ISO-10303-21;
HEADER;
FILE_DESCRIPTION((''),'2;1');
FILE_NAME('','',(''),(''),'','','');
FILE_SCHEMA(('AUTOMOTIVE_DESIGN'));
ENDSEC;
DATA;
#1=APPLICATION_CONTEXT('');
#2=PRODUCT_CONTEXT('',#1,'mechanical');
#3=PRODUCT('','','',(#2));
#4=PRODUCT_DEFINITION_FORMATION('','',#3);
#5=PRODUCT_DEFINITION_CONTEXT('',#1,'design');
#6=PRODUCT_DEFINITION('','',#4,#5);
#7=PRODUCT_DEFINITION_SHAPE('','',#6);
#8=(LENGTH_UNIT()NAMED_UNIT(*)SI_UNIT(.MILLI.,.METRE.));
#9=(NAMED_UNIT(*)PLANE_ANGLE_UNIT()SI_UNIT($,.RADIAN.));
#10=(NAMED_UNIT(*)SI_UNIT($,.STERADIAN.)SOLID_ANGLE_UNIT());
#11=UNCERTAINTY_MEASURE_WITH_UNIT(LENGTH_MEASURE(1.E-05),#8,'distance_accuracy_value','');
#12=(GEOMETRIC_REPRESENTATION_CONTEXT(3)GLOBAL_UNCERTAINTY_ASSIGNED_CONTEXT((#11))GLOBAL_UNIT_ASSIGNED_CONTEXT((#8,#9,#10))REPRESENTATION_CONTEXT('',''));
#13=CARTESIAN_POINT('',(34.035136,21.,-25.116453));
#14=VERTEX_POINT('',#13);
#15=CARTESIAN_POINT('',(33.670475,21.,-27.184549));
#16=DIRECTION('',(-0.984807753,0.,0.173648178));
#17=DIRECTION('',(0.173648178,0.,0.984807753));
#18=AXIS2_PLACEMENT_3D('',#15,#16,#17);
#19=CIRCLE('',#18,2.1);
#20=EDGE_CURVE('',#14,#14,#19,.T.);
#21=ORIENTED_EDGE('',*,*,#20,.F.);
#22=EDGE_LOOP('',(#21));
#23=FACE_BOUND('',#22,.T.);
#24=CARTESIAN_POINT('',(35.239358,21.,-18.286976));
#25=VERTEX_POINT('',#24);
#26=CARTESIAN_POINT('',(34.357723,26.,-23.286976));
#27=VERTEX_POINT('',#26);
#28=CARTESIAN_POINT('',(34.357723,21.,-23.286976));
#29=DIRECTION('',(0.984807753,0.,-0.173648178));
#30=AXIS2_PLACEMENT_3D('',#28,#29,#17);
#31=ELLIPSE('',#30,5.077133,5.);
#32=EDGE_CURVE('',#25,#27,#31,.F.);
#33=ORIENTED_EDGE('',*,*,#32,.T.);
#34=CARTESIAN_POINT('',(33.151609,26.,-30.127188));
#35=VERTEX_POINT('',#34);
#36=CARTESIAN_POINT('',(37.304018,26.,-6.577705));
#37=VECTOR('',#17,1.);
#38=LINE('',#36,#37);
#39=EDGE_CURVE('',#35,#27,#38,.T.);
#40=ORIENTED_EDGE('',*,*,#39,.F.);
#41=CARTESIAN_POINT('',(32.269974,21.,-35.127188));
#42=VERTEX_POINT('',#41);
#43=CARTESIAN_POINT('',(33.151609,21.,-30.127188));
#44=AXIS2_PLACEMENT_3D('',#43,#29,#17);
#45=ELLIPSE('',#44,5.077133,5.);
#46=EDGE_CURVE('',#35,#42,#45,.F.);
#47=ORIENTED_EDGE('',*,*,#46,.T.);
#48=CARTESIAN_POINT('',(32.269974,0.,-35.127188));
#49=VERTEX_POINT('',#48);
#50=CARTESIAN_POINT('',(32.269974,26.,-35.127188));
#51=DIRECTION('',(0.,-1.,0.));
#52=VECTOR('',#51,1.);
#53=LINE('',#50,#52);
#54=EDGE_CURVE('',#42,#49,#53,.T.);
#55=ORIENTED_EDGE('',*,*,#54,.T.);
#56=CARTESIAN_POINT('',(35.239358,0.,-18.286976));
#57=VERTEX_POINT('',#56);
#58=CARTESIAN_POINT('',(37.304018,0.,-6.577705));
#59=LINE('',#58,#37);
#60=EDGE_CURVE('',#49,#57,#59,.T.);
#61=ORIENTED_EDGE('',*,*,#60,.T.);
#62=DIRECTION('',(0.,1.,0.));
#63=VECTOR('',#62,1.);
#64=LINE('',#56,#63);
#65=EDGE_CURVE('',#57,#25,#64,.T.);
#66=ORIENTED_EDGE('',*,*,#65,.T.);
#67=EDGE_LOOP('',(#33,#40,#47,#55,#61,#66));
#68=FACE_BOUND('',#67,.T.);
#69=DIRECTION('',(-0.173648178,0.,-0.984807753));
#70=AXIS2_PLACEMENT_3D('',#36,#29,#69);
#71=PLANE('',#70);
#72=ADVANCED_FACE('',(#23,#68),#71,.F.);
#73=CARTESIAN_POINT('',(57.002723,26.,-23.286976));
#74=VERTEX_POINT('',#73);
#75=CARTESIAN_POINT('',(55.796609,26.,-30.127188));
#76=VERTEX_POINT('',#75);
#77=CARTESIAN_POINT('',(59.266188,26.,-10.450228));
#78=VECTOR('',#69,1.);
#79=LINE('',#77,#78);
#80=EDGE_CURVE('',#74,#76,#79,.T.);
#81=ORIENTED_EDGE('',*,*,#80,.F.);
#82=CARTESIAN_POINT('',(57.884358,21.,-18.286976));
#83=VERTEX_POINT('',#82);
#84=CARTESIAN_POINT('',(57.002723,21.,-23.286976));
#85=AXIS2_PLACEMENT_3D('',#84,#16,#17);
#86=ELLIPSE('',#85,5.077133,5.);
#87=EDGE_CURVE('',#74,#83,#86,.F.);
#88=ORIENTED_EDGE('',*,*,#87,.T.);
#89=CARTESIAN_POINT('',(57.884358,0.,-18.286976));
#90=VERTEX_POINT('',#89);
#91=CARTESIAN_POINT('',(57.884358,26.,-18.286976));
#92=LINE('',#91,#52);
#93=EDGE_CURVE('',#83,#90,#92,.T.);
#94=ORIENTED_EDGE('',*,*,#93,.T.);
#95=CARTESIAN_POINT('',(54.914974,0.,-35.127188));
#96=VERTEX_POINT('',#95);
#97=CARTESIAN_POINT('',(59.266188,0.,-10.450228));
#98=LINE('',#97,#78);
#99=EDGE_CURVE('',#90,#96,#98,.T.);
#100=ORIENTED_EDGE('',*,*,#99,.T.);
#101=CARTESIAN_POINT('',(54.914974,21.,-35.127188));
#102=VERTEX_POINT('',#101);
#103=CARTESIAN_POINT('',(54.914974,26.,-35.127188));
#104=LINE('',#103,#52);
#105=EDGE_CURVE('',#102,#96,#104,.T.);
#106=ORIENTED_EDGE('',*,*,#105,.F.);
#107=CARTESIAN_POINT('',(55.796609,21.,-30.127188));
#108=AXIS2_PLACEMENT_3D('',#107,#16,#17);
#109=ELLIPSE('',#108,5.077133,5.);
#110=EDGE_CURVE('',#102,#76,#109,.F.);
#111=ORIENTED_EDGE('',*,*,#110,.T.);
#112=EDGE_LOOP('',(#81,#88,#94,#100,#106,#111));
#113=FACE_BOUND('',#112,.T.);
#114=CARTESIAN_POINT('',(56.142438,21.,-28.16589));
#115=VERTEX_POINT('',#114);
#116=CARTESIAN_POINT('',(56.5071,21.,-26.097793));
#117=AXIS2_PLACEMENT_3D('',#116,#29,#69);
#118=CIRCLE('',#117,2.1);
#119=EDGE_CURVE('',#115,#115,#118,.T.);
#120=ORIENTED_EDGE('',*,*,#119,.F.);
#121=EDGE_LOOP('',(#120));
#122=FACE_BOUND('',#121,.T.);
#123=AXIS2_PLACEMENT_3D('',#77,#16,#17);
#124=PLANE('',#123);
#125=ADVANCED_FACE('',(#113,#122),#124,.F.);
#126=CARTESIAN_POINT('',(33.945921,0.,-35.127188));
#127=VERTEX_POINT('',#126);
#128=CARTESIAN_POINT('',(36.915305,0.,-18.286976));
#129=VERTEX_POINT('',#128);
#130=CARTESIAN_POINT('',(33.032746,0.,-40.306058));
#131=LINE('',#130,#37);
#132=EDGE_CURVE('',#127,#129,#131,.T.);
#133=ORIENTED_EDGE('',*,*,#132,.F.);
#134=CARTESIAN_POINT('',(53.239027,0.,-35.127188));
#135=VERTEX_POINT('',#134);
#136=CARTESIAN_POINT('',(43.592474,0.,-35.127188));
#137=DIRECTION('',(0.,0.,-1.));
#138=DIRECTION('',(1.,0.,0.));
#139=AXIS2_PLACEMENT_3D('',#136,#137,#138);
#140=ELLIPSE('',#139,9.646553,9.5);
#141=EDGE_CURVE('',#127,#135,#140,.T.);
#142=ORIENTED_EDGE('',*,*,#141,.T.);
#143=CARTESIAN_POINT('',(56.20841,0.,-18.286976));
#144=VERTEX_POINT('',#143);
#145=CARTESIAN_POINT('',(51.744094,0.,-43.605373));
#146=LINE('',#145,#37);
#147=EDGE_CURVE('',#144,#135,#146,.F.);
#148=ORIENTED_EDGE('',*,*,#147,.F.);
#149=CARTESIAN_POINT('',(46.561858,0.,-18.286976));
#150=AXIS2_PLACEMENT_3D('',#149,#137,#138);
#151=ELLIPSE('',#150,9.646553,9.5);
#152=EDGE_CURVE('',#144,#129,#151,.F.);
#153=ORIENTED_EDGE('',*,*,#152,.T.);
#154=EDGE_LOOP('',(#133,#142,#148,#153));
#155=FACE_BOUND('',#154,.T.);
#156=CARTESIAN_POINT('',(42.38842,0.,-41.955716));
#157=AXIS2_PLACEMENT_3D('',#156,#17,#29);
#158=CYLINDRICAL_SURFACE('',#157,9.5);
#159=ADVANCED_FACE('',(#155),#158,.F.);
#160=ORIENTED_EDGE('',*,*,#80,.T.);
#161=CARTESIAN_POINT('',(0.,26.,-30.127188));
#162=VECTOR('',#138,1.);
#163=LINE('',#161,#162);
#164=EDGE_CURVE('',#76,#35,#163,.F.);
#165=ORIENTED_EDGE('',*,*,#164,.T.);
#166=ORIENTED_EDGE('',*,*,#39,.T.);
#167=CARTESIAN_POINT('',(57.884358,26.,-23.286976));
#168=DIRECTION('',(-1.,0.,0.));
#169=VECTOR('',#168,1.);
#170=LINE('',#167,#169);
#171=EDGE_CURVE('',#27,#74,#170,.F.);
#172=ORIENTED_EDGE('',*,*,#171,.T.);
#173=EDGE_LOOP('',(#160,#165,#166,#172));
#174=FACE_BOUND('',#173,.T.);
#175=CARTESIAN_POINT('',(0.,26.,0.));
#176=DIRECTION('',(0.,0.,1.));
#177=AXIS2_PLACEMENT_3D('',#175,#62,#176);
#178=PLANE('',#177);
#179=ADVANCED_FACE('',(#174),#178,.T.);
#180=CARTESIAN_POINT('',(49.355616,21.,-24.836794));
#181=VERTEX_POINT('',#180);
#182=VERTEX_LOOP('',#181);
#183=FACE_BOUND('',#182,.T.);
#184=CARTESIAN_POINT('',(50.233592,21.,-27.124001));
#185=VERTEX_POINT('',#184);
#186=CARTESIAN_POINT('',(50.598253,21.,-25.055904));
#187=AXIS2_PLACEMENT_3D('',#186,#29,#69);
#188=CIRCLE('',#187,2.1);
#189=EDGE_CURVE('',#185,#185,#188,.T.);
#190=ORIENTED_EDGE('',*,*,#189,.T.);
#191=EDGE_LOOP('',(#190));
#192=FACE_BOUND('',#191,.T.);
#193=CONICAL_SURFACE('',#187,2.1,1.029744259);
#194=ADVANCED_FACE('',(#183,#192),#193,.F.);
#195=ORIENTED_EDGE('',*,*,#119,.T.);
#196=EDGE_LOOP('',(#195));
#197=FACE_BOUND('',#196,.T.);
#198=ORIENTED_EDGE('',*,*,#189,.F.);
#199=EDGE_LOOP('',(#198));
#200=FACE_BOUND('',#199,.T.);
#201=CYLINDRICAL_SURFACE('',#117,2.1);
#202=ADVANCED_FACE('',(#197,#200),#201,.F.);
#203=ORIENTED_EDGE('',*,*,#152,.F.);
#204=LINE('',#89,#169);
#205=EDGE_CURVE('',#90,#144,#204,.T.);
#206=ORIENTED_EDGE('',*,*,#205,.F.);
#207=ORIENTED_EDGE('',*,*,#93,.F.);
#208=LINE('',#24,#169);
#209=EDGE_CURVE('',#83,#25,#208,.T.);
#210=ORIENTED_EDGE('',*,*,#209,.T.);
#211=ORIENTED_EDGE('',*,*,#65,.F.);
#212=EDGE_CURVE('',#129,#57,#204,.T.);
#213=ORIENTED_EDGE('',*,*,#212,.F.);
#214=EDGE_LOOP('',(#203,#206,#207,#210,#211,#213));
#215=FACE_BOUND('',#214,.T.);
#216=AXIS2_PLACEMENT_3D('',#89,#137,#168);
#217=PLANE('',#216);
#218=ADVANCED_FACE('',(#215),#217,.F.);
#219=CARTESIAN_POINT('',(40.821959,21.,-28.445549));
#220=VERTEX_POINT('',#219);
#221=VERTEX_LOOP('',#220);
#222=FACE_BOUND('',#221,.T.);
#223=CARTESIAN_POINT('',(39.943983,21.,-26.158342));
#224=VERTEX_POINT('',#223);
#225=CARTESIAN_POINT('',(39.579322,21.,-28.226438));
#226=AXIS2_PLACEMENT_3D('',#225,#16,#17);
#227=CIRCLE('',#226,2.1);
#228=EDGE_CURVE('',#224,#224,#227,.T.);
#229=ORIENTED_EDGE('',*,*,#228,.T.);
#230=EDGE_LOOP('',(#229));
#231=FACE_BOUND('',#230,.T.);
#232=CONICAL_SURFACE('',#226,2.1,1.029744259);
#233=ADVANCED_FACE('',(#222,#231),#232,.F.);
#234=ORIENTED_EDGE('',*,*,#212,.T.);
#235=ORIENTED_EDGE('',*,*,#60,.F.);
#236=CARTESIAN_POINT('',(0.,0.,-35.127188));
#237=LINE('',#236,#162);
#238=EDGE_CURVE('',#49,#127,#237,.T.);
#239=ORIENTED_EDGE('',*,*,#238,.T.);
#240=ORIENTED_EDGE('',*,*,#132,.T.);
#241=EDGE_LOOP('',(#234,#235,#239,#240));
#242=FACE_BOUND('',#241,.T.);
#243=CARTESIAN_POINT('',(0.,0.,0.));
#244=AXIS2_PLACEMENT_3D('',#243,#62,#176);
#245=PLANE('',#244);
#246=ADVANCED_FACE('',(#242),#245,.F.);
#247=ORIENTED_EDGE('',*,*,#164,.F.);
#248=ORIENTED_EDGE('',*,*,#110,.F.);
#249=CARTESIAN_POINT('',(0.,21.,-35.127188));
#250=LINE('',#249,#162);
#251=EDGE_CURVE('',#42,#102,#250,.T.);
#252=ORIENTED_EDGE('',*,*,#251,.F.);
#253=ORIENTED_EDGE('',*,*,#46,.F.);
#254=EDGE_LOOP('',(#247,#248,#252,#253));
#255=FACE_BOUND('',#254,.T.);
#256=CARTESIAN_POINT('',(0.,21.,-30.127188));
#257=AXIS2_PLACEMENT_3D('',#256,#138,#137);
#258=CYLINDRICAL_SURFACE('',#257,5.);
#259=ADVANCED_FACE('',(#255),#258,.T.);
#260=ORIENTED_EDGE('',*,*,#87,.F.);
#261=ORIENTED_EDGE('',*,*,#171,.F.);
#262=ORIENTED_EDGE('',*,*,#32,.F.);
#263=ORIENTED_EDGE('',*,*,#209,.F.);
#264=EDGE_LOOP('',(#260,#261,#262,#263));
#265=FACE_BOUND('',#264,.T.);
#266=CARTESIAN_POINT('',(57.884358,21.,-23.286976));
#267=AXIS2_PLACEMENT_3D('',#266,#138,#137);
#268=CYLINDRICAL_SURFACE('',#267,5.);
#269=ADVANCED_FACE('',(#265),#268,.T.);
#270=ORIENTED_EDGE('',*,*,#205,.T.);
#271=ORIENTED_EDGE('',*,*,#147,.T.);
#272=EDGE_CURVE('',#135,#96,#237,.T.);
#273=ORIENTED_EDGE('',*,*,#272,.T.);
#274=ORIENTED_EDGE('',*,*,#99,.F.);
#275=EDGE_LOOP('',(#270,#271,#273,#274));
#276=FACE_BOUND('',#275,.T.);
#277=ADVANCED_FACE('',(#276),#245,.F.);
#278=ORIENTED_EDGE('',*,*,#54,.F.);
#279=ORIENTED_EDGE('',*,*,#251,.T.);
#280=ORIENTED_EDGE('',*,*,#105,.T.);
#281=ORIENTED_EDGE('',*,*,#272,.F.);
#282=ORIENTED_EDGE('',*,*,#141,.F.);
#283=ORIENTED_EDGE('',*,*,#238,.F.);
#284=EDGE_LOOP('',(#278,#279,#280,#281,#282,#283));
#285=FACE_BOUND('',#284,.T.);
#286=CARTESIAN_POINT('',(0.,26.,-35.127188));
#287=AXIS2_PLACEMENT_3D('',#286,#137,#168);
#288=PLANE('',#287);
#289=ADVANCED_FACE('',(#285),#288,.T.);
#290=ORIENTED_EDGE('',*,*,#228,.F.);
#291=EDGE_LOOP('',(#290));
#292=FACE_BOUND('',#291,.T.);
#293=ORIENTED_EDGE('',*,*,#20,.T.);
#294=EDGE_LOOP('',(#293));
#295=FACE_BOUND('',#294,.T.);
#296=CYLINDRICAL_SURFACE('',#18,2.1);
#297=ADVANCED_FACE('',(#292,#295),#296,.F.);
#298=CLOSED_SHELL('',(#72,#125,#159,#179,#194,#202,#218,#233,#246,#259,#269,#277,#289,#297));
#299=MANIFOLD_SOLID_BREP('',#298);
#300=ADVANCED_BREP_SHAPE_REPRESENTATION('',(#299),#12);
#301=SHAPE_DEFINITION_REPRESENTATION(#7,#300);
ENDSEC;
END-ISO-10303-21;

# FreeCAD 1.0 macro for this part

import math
import FreeCAD as App
import Part
import Sketcher

V = App.Vector
Q = App.Units.Quantity


def edges_at(feature, points):
    """Names of the edges that pass closest to the given points."""
    edges = feature.Shape.Edges
    near = lambda p: min(range(len(edges)), key=lambda i: edges[i].distToShape(Part.Vertex(*p))[0])
    return sorted({f"Edge{near(p) + 1}" for p in points})


def add_polygon(sketch, points):
    """Adds a closed chain of lines whose ends are joined by coincident constraints."""
    first, n = sketch.GeometryCount, len(points)
    for a, b in zip(points, points[1:] + points[:1]):
        sketch.addGeometry(Part.LineSegment(App.Vector(*a, 0), App.Vector(*b, 0)), False)
    for i in range(n):
        sketch.addConstraint(Sketcher.Constraint("Coincident", first + i, 2, first + (i + 1) % n, 1))

doc = App.newDocument("Part")
params = doc.addObject("Spreadsheet::Sheet", "Params")
for row, (alias, value) in enumerate([
    ("sketch1_length", "17.1 mm"),
    ("pad1_length", "26 mm"),
    ("sketch2_radius", "9.5 mm"),
    ("pocket1_length", "26 mm"),
    ("pocket2_length", "26 mm"),
    ("fillet_radius", "5 mm"),
    ("sketch4_diameter", "4.2 mm"),
    ("hole_diameter", "4.2 mm"),
    ("hole_depth", "6 mm"),
    ("sketch5_diameter", "4.2 mm"),
    ("hole2_diameter", "4.2 mm"),
    ("hole2_depth", "6 mm"),
], start=1):
    params.set(f"A{row}", alias)
    params.set(f"B{row}", "=" + value)
    params.setAlias(f"B{row}", alias)

body = doc.addObject("PartDesign::Body", "Body")

# Sketch on XZ plane
sketch1 = body.newObject("Sketcher::SketchObject", "Sketch")
sketch1.AttachmentSupport = (doc.getObject("XZ_Plane"), [""])
sketch1.MapMode = "FlatFace"
add_polygon(sketch1, [(57.884358, -18.286976), (54.914974, -35.127188), (32.269974, -35.127188), (35.239358, -18.286976), (35.922188, -14.414452)])  # lines 0-4
sketch1.addConstraint([
    Sketcher.Constraint("Horizontal", 1),
    Sketcher.Constraint("Parallel", 0, 2),
    Sketcher.Constraint("Parallel", 2, 3),
    Sketcher.Constraint("Perpendicular", 3, 4),
    Sketcher.Constraint("Horizontal", 2, 2, 4, 2),
    Sketcher.Constraint("Angle", 0, Q("-100 deg")),
    Sketcher.Constraint("Distance", 0, Q("17.1 mm")),
    Sketcher.Constraint("DistanceX", 1, 2, 1, 1, Q("22.645 mm")),
    Sketcher.Constraint("DistanceY", 0, 2, -1, 1, Q("35.127188 mm")),
    Sketcher.Constraint("DistanceX", -1, 1, 0, 2, Q("54.914974 mm")),
])
sketch1.setExpression("Constraints[11]", "Params.sketch1_length")
pad1 = body.newObject("PartDesign::Pad", "Pad")
pad1.Profile = sketch1
pad1.setExpression("Length", "Params.pad1_length")
pad1.Reversed = True

# Sketch on an angled plane
sketch2 = body.newObject("Sketcher::SketchObject", "Sketch001")
sketch2.Placement = App.Placement(V(-1.38183, 0, -7.836748), App.Rotation(V(0.984807753, 0, -0.173648178), V(0, 1, 0), V(0.173648178, 0, 0.984807753), "ZXY"))
sketch2.addGeometry([
    Part.LineSegment(V(39.529978, 0, 0), V(58.529978, 0, 0)),
    Part.ArcOfCircle(Part.Circle(V(49.029978, 0, 0), V(0, 0, 1), 9.5), math.radians(0), math.radians(180)),
], False)
sketch2.addConstraint([
    Sketcher.Constraint("Coincident", 0, 1, 1, 2),
    Sketcher.Constraint("Coincident", 1, 1, 0, 2),
    Sketcher.Constraint("Horizontal", 0),
    Sketcher.Constraint("PointOnObject", 1, 3, -1),
    Sketcher.Constraint("PointOnObject", 0, 1, -1),
    Sketcher.Constraint("Radius", 1, Q("9.5 mm")),
    Sketcher.Constraint("DistanceX", -1, 1, 1, 3, Q("49.029978 mm")),
])
sketch2.setExpression("Constraints[5]", "Params.sketch2_radius")
pocket1 = body.newObject("PartDesign::Pocket", "Pocket")
pocket1.Profile = sketch2
pocket1.setExpression("Length", "Params.pocket1_length")

# Sketch on XZ plane
sketch3 = body.newObject("Sketcher::SketchObject", "Sketch002")
sketch3.AttachmentSupport = (doc.getObject("XZ_Plane"), [""])
sketch3.MapMode = "FlatFace"
sketch3.AttachmentOffset = App.Placement(V(0, 0, -26), App.Rotation())
add_polygon(sketch3, [(35.239358, -18.286976), (35.922188, -14.414452), (57.884358, -18.286976)])  # lines 0-2
sketch3.addConstraint([
    Sketcher.Constraint("Horizontal", 2),
    Sketcher.Constraint("Perpendicular", 0, 1),
    Sketcher.Constraint("Angle", 0, Q("80 deg")),
    Sketcher.Constraint("DistanceX", 2, 2, 2, 1, Q("22.645 mm")),
    Sketcher.Constraint("DistanceX", -1, 1, 0, 2, Q("35.922188 mm")),
    Sketcher.Constraint("DistanceY", 0, 2, -1, 1, Q("14.414452 mm")),
])
pocket2 = body.newObject("PartDesign::Pocket", "Pocket001")
pocket2.Profile = sketch3
pocket2.setExpression("Length", "Params.pocket2_length")
pocket2.Reversed = True
doc.recompute()

fillet = body.newObject("PartDesign::Fillet", "Fillet")
fillet.Base = (pocket2, edges_at(pocket2, [(43.592, 26, -35.127), (46.562, 26, -18.287)]))
fillet.setExpression("Radius", "Params.fillet_radius")

# Sketch on an angled plane
sketch4 = body.newObject("Sketcher::SketchObject", "Sketch003")
sketch4.Placement = App.Placement(V(37.304018, 0, -6.577705), App.Rotation(V(-0.173648178, 0, -0.984807753), V(0, -1, 0), V(-0.984807753, 0, 0.173648178), "ZXY"))
sketch4.addGeometry(Part.Circle(V(20.924738, -21, 0), V(0, 0, 1), 2.1), False)
sketch4.addConstraint([
    Sketcher.Constraint("Diameter", 0, Q("4.2 mm")),
    Sketcher.Constraint("DistanceY", 0, 3, -1, 1, Q("21 mm")),
    Sketcher.Constraint("DistanceX", -1, 1, 0, 3, Q("20.924738 mm")),
])
sketch4.setExpression("Constraints[0]", "Params.sketch4_diameter")
doc.recompute()
hole = body.newObject("PartDesign::Hole", "Hole")
hole.Profile = sketch4
hole.ThreadType = "None"
hole.setExpression("Diameter", "Params.hole_diameter")
hole.DepthType = "Dimension"
hole.setExpression("Depth", "Params.hole_depth")
hole.DrillPoint = "Angled"
hole.DrillPointAngle = 118

# Sketch on an angled plane
sketch5 = body.newObject("Sketcher::SketchObject", "Sketch004")
sketch5.Placement = App.Placement(V(59.266187, 0, -10.450214), App.Rotation(V(0.173647963, 0, 0.984807791), V(0, -1, 0), V(0.984807791, 0, -0.173647963), "ZXY"))
sketch5.addGeometry(Part.Circle(V(-15.888968, -21, 0), V(0, 0, 1), 2.1), False)
sketch5.addConstraint([
    Sketcher.Constraint("Diameter", 0, Q("4.2 mm")),
    Sketcher.Constraint("DistanceY", 0, 3, -1, 1, Q("21 mm")),
    Sketcher.Constraint("DistanceX", 0, 3, -1, 1, Q("15.888968 mm")),
])
sketch5.setExpression("Constraints[0]", "Params.sketch5_diameter")
doc.recompute()
hole2 = body.newObject("PartDesign::Hole", "Hole001")
hole2.Profile = sketch5
hole2.ThreadType = "None"
hole2.setExpression("Diameter", "Params.hole2_diameter")
hole2.DepthType = "Dimension"
hole2.setExpression("Depth", "Params.hole2_depth")
hole2.DrillPoint = "Angled"
hole2.DrillPointAngle = 118

doc.recompute()
